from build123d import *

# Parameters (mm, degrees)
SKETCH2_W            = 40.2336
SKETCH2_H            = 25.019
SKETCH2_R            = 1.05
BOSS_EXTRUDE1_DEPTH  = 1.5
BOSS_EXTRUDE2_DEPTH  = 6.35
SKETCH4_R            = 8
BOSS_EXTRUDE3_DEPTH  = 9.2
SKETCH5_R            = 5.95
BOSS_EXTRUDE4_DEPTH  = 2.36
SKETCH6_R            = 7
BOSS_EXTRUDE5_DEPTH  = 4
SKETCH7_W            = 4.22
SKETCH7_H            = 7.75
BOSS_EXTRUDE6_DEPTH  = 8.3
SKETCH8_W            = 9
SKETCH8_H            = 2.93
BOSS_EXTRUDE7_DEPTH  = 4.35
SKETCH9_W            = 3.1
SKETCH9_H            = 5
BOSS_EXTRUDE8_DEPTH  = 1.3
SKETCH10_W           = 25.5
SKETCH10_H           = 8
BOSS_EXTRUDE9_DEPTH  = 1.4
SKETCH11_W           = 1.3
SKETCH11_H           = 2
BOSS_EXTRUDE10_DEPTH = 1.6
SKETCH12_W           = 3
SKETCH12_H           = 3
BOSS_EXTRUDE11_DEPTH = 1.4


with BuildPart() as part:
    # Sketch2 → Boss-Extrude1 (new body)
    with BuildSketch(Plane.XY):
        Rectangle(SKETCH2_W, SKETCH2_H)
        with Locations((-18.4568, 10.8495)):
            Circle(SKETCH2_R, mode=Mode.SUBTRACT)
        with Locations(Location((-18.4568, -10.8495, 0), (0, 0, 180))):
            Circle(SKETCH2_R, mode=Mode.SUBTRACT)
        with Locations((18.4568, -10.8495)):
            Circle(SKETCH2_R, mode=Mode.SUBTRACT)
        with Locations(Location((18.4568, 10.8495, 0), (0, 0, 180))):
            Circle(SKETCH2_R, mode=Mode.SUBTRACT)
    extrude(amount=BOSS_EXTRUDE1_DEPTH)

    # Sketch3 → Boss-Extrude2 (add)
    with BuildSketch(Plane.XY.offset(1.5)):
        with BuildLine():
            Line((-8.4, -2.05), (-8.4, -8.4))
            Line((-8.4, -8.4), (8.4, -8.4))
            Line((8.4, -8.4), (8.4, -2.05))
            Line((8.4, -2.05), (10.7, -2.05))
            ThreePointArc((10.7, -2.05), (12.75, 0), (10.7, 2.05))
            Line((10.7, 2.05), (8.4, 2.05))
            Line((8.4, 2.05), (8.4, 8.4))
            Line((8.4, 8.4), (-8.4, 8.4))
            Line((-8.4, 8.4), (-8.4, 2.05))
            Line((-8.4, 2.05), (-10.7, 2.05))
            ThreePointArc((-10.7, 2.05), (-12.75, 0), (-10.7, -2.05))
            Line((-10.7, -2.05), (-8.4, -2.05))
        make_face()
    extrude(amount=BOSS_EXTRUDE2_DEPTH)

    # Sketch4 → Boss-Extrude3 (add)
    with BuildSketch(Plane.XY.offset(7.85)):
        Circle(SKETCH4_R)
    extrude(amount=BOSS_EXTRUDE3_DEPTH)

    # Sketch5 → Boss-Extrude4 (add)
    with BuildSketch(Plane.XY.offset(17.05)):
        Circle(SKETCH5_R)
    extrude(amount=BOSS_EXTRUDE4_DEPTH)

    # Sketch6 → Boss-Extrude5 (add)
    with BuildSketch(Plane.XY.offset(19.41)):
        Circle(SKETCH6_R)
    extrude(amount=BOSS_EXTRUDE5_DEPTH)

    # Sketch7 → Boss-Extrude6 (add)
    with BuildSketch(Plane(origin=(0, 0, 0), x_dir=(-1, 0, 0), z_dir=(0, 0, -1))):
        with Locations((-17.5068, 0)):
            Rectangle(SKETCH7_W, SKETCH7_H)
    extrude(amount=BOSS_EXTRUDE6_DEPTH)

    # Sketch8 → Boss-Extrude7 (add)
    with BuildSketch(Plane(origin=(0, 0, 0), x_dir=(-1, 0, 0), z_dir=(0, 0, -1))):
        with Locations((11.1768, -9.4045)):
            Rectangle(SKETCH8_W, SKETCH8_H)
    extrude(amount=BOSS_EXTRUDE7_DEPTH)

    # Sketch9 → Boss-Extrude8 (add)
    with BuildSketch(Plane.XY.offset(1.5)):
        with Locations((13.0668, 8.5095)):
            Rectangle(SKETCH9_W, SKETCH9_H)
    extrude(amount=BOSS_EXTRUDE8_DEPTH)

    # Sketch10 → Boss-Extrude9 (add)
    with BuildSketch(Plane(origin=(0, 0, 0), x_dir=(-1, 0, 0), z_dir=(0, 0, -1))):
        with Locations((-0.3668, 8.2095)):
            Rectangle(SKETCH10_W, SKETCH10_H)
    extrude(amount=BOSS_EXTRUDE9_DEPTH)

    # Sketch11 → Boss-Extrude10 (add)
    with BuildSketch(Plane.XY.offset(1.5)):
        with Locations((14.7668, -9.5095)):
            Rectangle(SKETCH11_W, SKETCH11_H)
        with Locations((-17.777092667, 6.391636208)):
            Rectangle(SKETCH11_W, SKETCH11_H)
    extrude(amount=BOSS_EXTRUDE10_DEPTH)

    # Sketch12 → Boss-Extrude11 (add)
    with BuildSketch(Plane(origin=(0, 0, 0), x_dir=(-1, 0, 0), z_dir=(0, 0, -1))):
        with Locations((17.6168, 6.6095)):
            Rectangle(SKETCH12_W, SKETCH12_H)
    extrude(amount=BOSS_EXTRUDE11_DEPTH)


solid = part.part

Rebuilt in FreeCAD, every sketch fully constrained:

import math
import FreeCAD as App
import Part
import Sketcher
from FreeCAD import Vector


def add_polygon(sketch, points):
    """Adds a closed chain of lines whose ends are joined by coincident constraints."""
    first, n = sketch.GeometryCount, len(points)
    for a, b in zip(points, points[1:] + points[:1]):
        sketch.addGeometry(Part.LineSegment(App.Vector(*a, 0), App.Vector(*b, 0)), False)
    for i in range(n):
        sketch.addConstraint(Sketcher.Constraint("Coincident", first + i, 2, first + (i + 1) % n, 1))

doc = App.newDocument("Part")
params = doc.addObject("Spreadsheet::Sheet", "Params")
for row, (alias, value) in enumerate([
    ("sketch1_diameter", "2.1 mm"),
    ("pad1_length", "1.5 mm"),
    ("sketch2_radius", "2.05 mm"),
    ("sketch2_width", "16.8 mm"),
    ("sketch2_width2", "2.3 mm"),
    ("sketch2_height", "6.35 mm"),
    ("pad2_length", "6.35 mm"),
    ("sketch3_diameter", "16 mm"),
    ("pad3_length", "9.2 mm"),
    ("sketch4_diameter", "11.9 mm"),
    ("pad4_length", "2.36 mm"),
    ("sketch5_diameter", "14 mm"),
    ("pad5_length", "4 mm"),
    ("sketch6_width", "4.22 mm"),
    ("sketch6_height", "7.75 mm"),
    ("pad6_length", "8.3 mm"),
    ("sketch7_width", "9 mm"),
    ("sketch7_height", "2.93 mm"),
    ("pad7_length", "4.35 mm"),
    ("sketch8_height", "5 mm"),
    ("sketch8_width", "3.1 mm"),
    ("pad8_length", "1.3 mm"),
    ("sketch9_height", "8 mm"),
    ("sketch9_width", "25.5 mm"),
    ("pad9_length", "1.4 mm"),
    ("sketch10_height", "2 mm"),
    ("sketch10_width", "1.3 mm"),
    ("pad10_length", "1.6 mm"),
    ("sketch11_width", "3 mm"),
    ("pad11_length", "1.4 mm"),
], start=1):
    params.set(f"A{row}", alias)
    params.set(f"B{row}", "=" + value)
    params.setAlias(f"B{row}", alias)

body = doc.addObject("PartDesign::Body", "Body")

sketch1 = body.newObject("Sketcher::SketchObject", "Sketch")
sketch1.AttachmentSupport = (doc.getObject("XY_Plane"), [""])
sketch1.MapMode = "FlatFace"
add_polygon(sketch1, [(-20.1, 12.5), (-20.1, -12.5), (20.1, -12.5), (20.1, 12.5)])
sketch1.addGeometry(Part.Circle(Vector(-18.5, -10.8, 0), Vector(0, 0, 1), 1.1), False)
sketch1.addGeometry(Part.Circle(Vector(18.5, -10.8, 0), Vector(0, 0, 1), 1.1), False)
sketch1.addGeometry(Part.Circle(Vector(-18.5, 10.8, 0), Vector(0, 0, 1), 1.1), False)
sketch1.addGeometry(Part.Circle(Vector(18.5, 10.8, 0), Vector(0, 0, 1), 1.1), False)
sketch1.addConstraint([
    Sketcher.Constraint("Vertical", 0),
    Sketcher.Constraint("Horizontal", 1),
    Sketcher.Constraint("Vertical", 2),
    Sketcher.Constraint("Horizontal", 3),
    Sketcher.Constraint("Equal", 4, 5),
    Sketcher.Constraint("Equal", 5, 6),
    Sketcher.Constraint("Equal", 6, 7),
    Sketcher.Constraint("Symmetric", 5, 3, 6, 3, -1, 1),
    Sketcher.Constraint("Symmetric", 4, 3, 7, 3, -1, 1),
    Sketcher.Constraint("Symmetric", 0, 2, 2, 2, -1, 1),
    Sketcher.Constraint("Symmetric", 4, 3, 5, 3, -2),
    Sketcher.Constraint("Diameter", 4, 2.1),
    Sketcher.Constraint("DistanceY", 0, 2, 0, 1, 25.019),
    Sketcher.Constraint("DistanceX", 0, 2, 4, 3, 1.66),
    Sketcher.Constraint("DistanceY", 0, 2, 4, 3, 1.66),
    Sketcher.Constraint("DistanceX", 1, 1, 1, 2, 40.2336),
])
sketch1.setExpression("Constraints[15]", "Params.sketch1_diameter")
pad1 = body.newObject("PartDesign::Pad", "Pad")
pad1.Profile = sketch1
pad1.setExpression("Length", "Params.pad1_length")

sketch2 = body.newObject("Sketcher::SketchObject", "Sketch001")
sketch2.AttachmentSupport = (doc.getObject("XY_Plane"), [""])
sketch2.MapMode = "FlatFace"
sketch2.AttachmentOffset = App.Placement(Vector(0, 0, 1.5), App.Rotation())
sketch2.addGeometry([
    Part.LineSegment(Vector(-8.4, -2, 0), Vector(-8.4, -8.4, 0)),
    Part.LineSegment(Vector(-8.4, -8.4, 0), Vector(8.4, -8.4, 0)),
    Part.LineSegment(Vector(8.4, -8.4, 0), Vector(8.4, -2, 0)),
    Part.LineSegment(Vector(8.4, -2, 0), Vector(10.7, -2, 0)),
    Part.ArcOfCircle(Part.Circle(Vector(10.7, 0, 0), Vector(0, 0, 1), 2), math.radians(-90), math.radians(90)),
    Part.LineSegment(Vector(10.7, 2, 0), Vector(8.4, 2, 0)),
    Part.LineSegment(Vector(8.4, 2, 0), Vector(8.4, 8.4, 0)),
    Part.LineSegment(Vector(8.4, 8.4, 0), Vector(-8.4, 8.4, 0)),
    Part.LineSegment(Vector(-8.4, 8.4, 0), Vector(-8.4, 2, 0)),
    Part.LineSegment(Vector(-8.4, 2, 0), Vector(-10.7, 2, 0)),
    Part.ArcOfCircle(Part.Circle(Vector(-10.7, 0, 0), Vector(0, 0, 1), 2), math.radians(90), math.radians(270)),
    Part.LineSegment(Vector(-10.7, -2, 0), Vector(-8.4, -2, 0)),
], False)
sketch2.addConstraint([
    Sketcher.Constraint("Coincident", 0, 2, 1, 1),
    Sketcher.Constraint("Coincident", 1, 2, 2, 1),
    Sketcher.Constraint("Coincident", 2, 2, 3, 1),
    Sketcher.Constraint("Tangent", 3, 2, 4, 1),
    Sketcher.Constraint("Tangent", 4, 2, 5, 1),
    Sketcher.Constraint("Coincident", 5, 2, 6, 1),
    Sketcher.Constraint("Coincident", 6, 2, 7, 1),
    Sketcher.Constraint("Coincident", 7, 2, 8, 1),
    Sketcher.Constraint("Coincident", 8, 2, 9, 1),
    Sketcher.Constraint("Tangent", 9, 2, 10, 1),
    Sketcher.Constraint("Tangent", 10, 2, 11, 1),
    Sketcher.Constraint("Coincident", 11, 2, 0, 1),
    Sketcher.Constraint("Vertical", 0),
    Sketcher.Constraint("Horizontal", 1),
    Sketcher.Constraint("Vertical", 2),
    Sketcher.Constraint("Horizontal", 3),
    Sketcher.Constraint("Horizontal", 5),
    Sketcher.Constraint("Vertical", 6),
    Sketcher.Constraint("Horizontal", 7),
    Sketcher.Constraint("Vertical", 8),
    Sketcher.Constraint("Horizontal", 9),
    Sketcher.Constraint("Horizontal", 11),
    Sketcher.Constraint("Equal", 4, 10),
    Sketcher.Constraint("Symmetric", 4, 3, 10, 3, -1, 1),
    Sketcher.Constraint("Symmetric", 0, 2, 6, 2, -1, 1),
    Sketcher.Constraint("Symmetric", 5, 2, 8, 2, -2),
    Sketcher.Constraint("Vertical", 2, 2, 5, 2),
    Sketcher.Constraint("Radius", 4, 2.05),
    Sketcher.Constraint("DistanceX", 1, 1, 1, 2, 16.8),
    Sketcher.Constraint("DistanceX", 3, 1, 3, 2, 2.3),
    Sketcher.Constraint("DistanceY", 0, 2, 0, 1, 6.35),
])
sketch2.setExpression("Constraints[27]", "Params.sketch2_radius")
sketch2.setExpression("Constraints[28]", "Params.sketch2_width")
sketch2.setExpression("Constraints[29]", "Params.sketch2_width2")
sketch2.setExpression("Constraints[30]", "Params.sketch2_height")
pad2 = body.newObject("PartDesign::Pad", "Pad001")
pad2.Profile = sketch2
pad2.setExpression("Length", "Params.pad2_length")

sketch3 = body.newObject("Sketcher::SketchObject", "Sketch002")
sketch3.AttachmentSupport = (doc.getObject("XY_Plane"), [""])
sketch3.MapMode = "FlatFace"
sketch3.AttachmentOffset = App.Placement(Vector(0, 0, 7.85), App.Rotation())
sketch3.addGeometry(Part.Circle(Vector(0, 0, 0), Vector(0, 0, 1), 8), False)
sketch3.addConstraint([
    Sketcher.Constraint("Coincident", 0, 3, -1, 1),
    Sketcher.Constraint("Diameter", 0, 16.0),
])
sketch3.setExpression("Constraints[1]", "Params.sketch3_diameter")
pad3 = body.newObject("PartDesign::Pad", "Pad002")
pad3.Profile = sketch3
pad3.setExpression("Length", "Params.pad3_length")

sketch4 = body.newObject("Sketcher::SketchObject", "Sketch003")
sketch4.AttachmentSupport = (doc.getObject("XY_Plane"), [""])
sketch4.MapMode = "FlatFace"
sketch4.AttachmentOffset = App.Placement(Vector(0, 0, 17.05), App.Rotation())
sketch4.addGeometry(Part.Circle(Vector(0, 0, 0), Vector(0, 0, 1), 6), False)
sketch4.addConstraint([
    Sketcher.Constraint("Coincident", 0, 3, -1, 1),
    Sketcher.Constraint("Diameter", 0, 11.9),
])
sketch4.setExpression("Constraints[1]", "Params.sketch4_diameter")
pad4 = body.newObject("PartDesign::Pad", "Pad003")
pad4.Profile = sketch4
pad4.setExpression("Length", "Params.pad4_length")

sketch5 = body.newObject("Sketcher::SketchObject", "Sketch004")
sketch5.AttachmentSupport = (doc.getObject("XY_Plane"), [""])
sketch5.MapMode = "FlatFace"
sketch5.AttachmentOffset = App.Placement(Vector(0, 0, 19.41), App.Rotation())
sketch5.addGeometry(Part.Circle(Vector(0, 0, 0), Vector(0, 0, 1), 7), False)
sketch5.addConstraint([
    Sketcher.Constraint("Coincident", 0, 3, -1, 1),
    Sketcher.Constraint("Diameter", 0, 14.0),
])
sketch5.setExpression("Constraints[1]", "Params.sketch5_diameter")
pad5 = body.newObject("PartDesign::Pad", "Pad004")
pad5.Profile = sketch5
pad5.setExpression("Length", "Params.pad5_length")

sketch6 = body.newObject("Sketcher::SketchObject", "Sketch005")
sketch6.AttachmentSupport = (doc.getObject("XY_Plane"), [""])
sketch6.MapMode = "FlatFace"
add_polygon(sketch6, [(19.6, 3.9), (19.6, -3.9), (15.4, -3.9), (15.4, 3.9)])
sketch6.addConstraint([
    Sketcher.Constraint("Vertical", 0),
    Sketcher.Constraint("Horizontal", 1),
    Sketcher.Constraint("Vertical", 2),
    Sketcher.Constraint("Horizontal", 3),
    Sketcher.Constraint("DistanceX", 1, 2, 1, 1, 4.22),
    Sketcher.Constraint("DistanceY", 0, 2, 0, 1, 7.75),
    Sketcher.Constraint("DistanceY", 0, 2, -1, 1, 3.875),
    Sketcher.Constraint("DistanceX", -1, 1, 0, 2, 19.6168),
])
sketch6.setExpression("Constraints[8]", "Params.sketch6_width")
sketch6.setExpression("Constraints[9]", "Params.sketch6_height")
pad6 = body.newObject("PartDesign::Pad", "Pad005")
pad6.Profile = sketch6
pad6.setExpression("Length", "Params.pad6_length")
pad6.Reversed = True

sketch7 = body.newObject("Sketcher::SketchObject", "Sketch006")
sketch7.AttachmentSupport = (doc.getObject("XY_Plane"), [""])
sketch7.MapMode = "FlatFace"
add_polygon(sketch7, [(-6.7, -7.9), (-6.7, -10.9), (-15.7, -10.9), (-15.7, -7.9)])
sketch7.addConstraint([
    Sketcher.Constraint("Vertical", 0),
    Sketcher.Constraint("Horizontal", 1),
    Sketcher.Constraint("Vertical", 2),
    Sketcher.Constraint("Horizontal", 3),
    Sketcher.Constraint("DistanceX", 1, 2, 1, 1, 9.0),
    Sketcher.Constraint("DistanceY", 0, 2, 0, 1, 2.93),
    Sketcher.Constraint("DistanceX", 0, 2, -1, 1, 6.6768),
    Sketcher.Constraint("DistanceY", 0, 2, -1, 1, 10.8695),
])
sketch7.setExpression("Constraints[8]", "Params.sketch7_width")
sketch7.setExpression("Constraints[9]", "Params.sketch7_height")
pad7 = body.newObject("PartDesign::Pad", "Pad006")
pad7.Profile = sketch7
pad7.setExpression("Length", "Params.pad7_length")
pad7.Reversed = True

sketch8 = body.newObject("Sketcher::SketchObject", "Sketch007")
sketch8.AttachmentSupport = (doc.getObject("XY_Plane"), [""])
sketch8.MapMode = "FlatFace"
sketch8.AttachmentOffset = App.Placement(Vector(0, 0, 1.5), App.Rotation())
add_polygon(sketch8, [(11.5, 11), (11.5, 6), (14.6, 6), (14.6, 11)])
sketch8.addConstraint([
    Sketcher.Constraint("Vertical", 0),
    Sketcher.Constraint("Horizontal", 1),
    Sketcher.Constraint("Vertical", 2),
    Sketcher.Constraint("Horizontal", 3),
    Sketcher.Constraint("DistanceY", 0, 2, 0, 1, 5.0),
    Sketcher.Constraint("DistanceX", 1, 1, 1, 2, 3.1),
    Sketcher.Constraint("DistanceX", -1, 1, 0, 2, 11.5168),
    Sketcher.Constraint("DistanceY", -1, 1, 0, 2, 6.0095),
])
sketch8.setExpression("Constraints[8]", "Params.sketch8_height")
sketch8.setExpression("Constraints[9]", "Params.sketch8_width")
pad8 = body.newObject("PartDesign::Pad", "Pad007")
pad8.Profile = sketch8
pad8.setExpression("Length", "Params.pad8_length")

sketch9 = body.newObject("Sketcher::SketchObject", "Sketch008")
sketch9.AttachmentSupport = (doc.getObject("XY_Plane"), [""])
sketch9.MapMode = "FlatFace"
add_polygon(sketch9, [(13, 12), (13, 4), (-12, 4), (-12, 12)])
sketch9.addConstraint([
    Sketcher.Constraint("Vertical", 0),
    Sketcher.Constraint("Horizontal", 1),
    Sketcher.Constraint("Vertical", 2),
    Sketcher.Constraint("Horizontal", 3),
    Sketcher.Constraint("DistanceY", 0, 2, 0, 1, 8.0),
    Sketcher.Constraint("DistanceX", 1, 2, 1, 1, 25.5),
    Sketcher.Constraint("DistanceX", -1, 1, 0, 2, 13.1168),
    Sketcher.Constraint("DistanceY", -1, 1, 0, 2, 4.2095),
])
sketch9.setExpression("Constraints[8]", "Params.sketch9_height")
sketch9.setExpression("Constraints[9]", "Params.sketch9_width")
pad9 = body.newObject("PartDesign::Pad", "Pad008")
pad9.Profile = sketch9
pad9.setExpression("Length", "Params.pad9_length")
pad9.Reversed = True

sketch10 = body.newObject("Sketcher::SketchObject", "Sketch009")
sketch10.AttachmentSupport = (doc.getObject("XY_Plane"), [""])
sketch10.MapMode = "FlatFace"
sketch10.AttachmentOffset = App.Placement(Vector(0, 0, 1.5), App.Rotation())
add_polygon(sketch10, [(14.1, -8.5), (14.1, -10.5), (15.4, -10.5), (15.4, -8.5)])
add_polygon(sketch10, [(-18.4, 7.4), (-18.4, 5.4), (-17.1, 5.4), (-17.1, 7.4)])
sketch10.addConstraint([
    Sketcher.Constraint("Vertical", 0),
    Sketcher.Constraint("Horizontal", 1),
    Sketcher.Constraint("Vertical", 2),
    Sketcher.Constraint("Horizontal", 3),
    Sketcher.Constraint("Vertical", 4),
    Sketcher.Constraint("Horizontal", 5),
    Sketcher.Constraint("Vertical", 6),
    Sketcher.Constraint("Horizontal", 7),
    Sketcher.Constraint("Equal", 3, 5),
    Sketcher.Constraint("Equal", 2, 4),
    Sketcher.Constraint("DistanceY", 0, 2, 0, 1, 2.0),
    Sketcher.Constraint("DistanceX", 1, 1, 1, 2, 1.3),
    Sketcher.Constraint("DistanceX", -1, 1, 0, 2, 14.1168),
    Sketcher.Constraint("DistanceY", 0, 2, -1, 1, 10.5095),
    Sketcher.Constraint("DistanceX", 4, 2, -1, 1, 18.427093),
    Sketcher.Constraint("DistanceY", -1, 1, 4, 2, 5.391636),
])
sketch10.setExpression("Constraints[18]", "Params.sketch10_height")
sketch10.setExpression("Constraints[19]", "Params.sketch10_width")
pad10 = body.newObject("PartDesign::Pad", "Pad009")
pad10.Profile = sketch10
pad10.setExpression("Length", "Params.pad10_length")

sketch11 = body.newObject("Sketcher::SketchObject", "Sketch010")
sketch11.AttachmentSupport = (doc.getObject("XY_Plane"), [""])
sketch11.MapMode = "FlatFace"
add_polygon(sketch11, [(-16.1, 8.1), (-16.1, 5.1), (-19.1, 5.1), (-19.1, 8.1)])
sketch11.addConstraint([
    Sketcher.Constraint("Vertical", 0),
    Sketcher.Constraint("Horizontal", 1),
    Sketcher.Constraint("Vertical", 2),
    Sketcher.Constraint("Horizontal", 3),
    Sketcher.Constraint("Equal", 3, 0),
    Sketcher.Constraint("DistanceX", 1, 2, 1, 1, 3.0),
    Sketcher.Constraint("DistanceX", 0, 2, -1, 1, 16.1168),
    Sketcher.Constraint("DistanceY", -1, 1, 0, 2, 5.1095),
])
sketch11.setExpression("Constraints[9]", "Params.sketch11_width")
pad11 = body.newObject("PartDesign::Pad", "Pad010")
pad11.Profile = sketch11
pad11.setExpression("Length", "Params.pad11_length")
pad11.Reversed = True

doc.recompute()
